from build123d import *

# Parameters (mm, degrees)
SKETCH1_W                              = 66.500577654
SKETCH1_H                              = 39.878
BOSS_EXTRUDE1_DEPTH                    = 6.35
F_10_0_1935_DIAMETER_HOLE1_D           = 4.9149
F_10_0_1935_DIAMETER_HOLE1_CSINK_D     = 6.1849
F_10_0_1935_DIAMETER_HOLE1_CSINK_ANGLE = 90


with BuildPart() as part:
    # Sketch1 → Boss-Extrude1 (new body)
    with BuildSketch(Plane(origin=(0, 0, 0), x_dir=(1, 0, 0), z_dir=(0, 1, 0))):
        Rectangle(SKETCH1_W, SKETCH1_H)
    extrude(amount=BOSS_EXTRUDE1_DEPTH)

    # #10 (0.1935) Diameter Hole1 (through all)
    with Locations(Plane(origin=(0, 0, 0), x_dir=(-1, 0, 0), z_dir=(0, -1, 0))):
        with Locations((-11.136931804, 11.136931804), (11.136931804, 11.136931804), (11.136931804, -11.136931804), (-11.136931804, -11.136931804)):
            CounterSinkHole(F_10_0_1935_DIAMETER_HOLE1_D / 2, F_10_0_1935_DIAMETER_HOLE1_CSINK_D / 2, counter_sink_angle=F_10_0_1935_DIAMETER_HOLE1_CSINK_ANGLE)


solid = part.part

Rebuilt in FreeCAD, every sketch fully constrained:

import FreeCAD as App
import Part
import Sketcher

V = App.Vector
Q = App.Units.Quantity

doc = App.newDocument("Part")
body = doc.addObject("PartDesign::Body", "Body")

# Sketch on XZ plane
sketch1 = body.newObject("Sketcher::SketchObject", "Sketch")
sketch1.AttachmentSupport = (doc.getObject("XZ_Plane"), [""])
sketch1.MapMode = "FlatFace"
sketch1.addGeometry([
    Part.LineSegment(V(-33.250289, -19.939, 0), V(-33.250289, 19.939, 0)),
    Part.LineSegment(V(-33.250289, 19.939, 0), V(33.250289, 19.939, 0)),
    Part.LineSegment(V(33.250289, 19.939, 0), V(33.250289, -19.939, 0)),
    Part.LineSegment(V(33.250289, -19.939, 0), V(-33.250289, -19.939, 0)),
], False)
sketch1.addConstraint([
    Sketcher.Constraint("Coincident", 0, 2, 1, 1),
    Sketcher.Constraint("Coincident", 1, 2, 2, 1),
    Sketcher.Constraint("Coincident", 2, 2, 3, 1),
    Sketcher.Constraint("Coincident", 3, 2, 0, 1),
    Sketcher.Constraint("Vertical", 0),
    Sketcher.Constraint("Horizontal", 1),
    Sketcher.Constraint("Vertical", 2),
    Sketcher.Constraint("Horizontal", 3),
    Sketcher.Constraint("Symmetric", 0, 2, 2, 2, -1, 1),
    Sketcher.Constraint("DistanceY", 0, 1, 0, 2, Q("1.57 in")),
    Sketcher.Constraint("DistanceX", 1, 1, 1, 2, 66.500578),
])
pad1 = body.newObject("PartDesign::Pad", "Pad")
pad1.Profile = sketch1
pad1.Length = Q("0.25 in")
pad1.Reversed = True

# Sketch on XZ plane
sketch2 = body.newObject("Sketcher::SketchObject", "Sketch001")
sketch2.AttachmentSupport = (doc.getObject("XZ_Plane"), [""])
sketch2.MapMode = "FlatFace"
sketch2.addGeometry([
    Part.Circle(V(11.136932, -11.136932, 0), V(0, 0, 1), 2.45745),
    Part.Circle(V(-11.136932, -11.136932, 0), V(0, 0, 1), 2.45745),
    Part.Circle(V(-11.136932, 11.136932, 0), V(0, 0, 1), 2.45745),
    Part.Circle(V(11.136932, 11.136932, 0), V(0, 0, 1), 2.45745),
], False)
sketch2.addConstraint([
    Sketcher.Constraint("Equal", 0, 1),
    Sketcher.Constraint("Equal", 1, 2),
    Sketcher.Constraint("Equal", 2, 3),
    Sketcher.Constraint("Symmetric", 0, 3, 2, 3, -1, 1),
    Sketcher.Constraint("Symmetric", 1, 3, 3, 3, -1, 1),
    Sketcher.Constraint("Symmetric", 0, 3, 1, 3, -2),
    Sketcher.Constraint("Diameter", 0, Q("0.1935 in")),
    Sketcher.Constraint("DistanceX", -1, 1, 0, 3, 11.136932),
    Sketcher.Constraint("DistanceY", 0, 3, -1, 1, 11.136932),
])
doc.recompute()
hole = body.newObject("PartDesign::Hole", "Hole")
hole.Profile = sketch2
hole.ThreadType = "None"
hole.Diameter = Q("0.1935 in")
hole.DepthType = "ThroughAll"
hole.HoleCutType = "Countersink"
hole.HoleCutDiameter = Q("0.2435 in")
hole.HoleCutCountersinkAngle = 90

doc.recompute()
